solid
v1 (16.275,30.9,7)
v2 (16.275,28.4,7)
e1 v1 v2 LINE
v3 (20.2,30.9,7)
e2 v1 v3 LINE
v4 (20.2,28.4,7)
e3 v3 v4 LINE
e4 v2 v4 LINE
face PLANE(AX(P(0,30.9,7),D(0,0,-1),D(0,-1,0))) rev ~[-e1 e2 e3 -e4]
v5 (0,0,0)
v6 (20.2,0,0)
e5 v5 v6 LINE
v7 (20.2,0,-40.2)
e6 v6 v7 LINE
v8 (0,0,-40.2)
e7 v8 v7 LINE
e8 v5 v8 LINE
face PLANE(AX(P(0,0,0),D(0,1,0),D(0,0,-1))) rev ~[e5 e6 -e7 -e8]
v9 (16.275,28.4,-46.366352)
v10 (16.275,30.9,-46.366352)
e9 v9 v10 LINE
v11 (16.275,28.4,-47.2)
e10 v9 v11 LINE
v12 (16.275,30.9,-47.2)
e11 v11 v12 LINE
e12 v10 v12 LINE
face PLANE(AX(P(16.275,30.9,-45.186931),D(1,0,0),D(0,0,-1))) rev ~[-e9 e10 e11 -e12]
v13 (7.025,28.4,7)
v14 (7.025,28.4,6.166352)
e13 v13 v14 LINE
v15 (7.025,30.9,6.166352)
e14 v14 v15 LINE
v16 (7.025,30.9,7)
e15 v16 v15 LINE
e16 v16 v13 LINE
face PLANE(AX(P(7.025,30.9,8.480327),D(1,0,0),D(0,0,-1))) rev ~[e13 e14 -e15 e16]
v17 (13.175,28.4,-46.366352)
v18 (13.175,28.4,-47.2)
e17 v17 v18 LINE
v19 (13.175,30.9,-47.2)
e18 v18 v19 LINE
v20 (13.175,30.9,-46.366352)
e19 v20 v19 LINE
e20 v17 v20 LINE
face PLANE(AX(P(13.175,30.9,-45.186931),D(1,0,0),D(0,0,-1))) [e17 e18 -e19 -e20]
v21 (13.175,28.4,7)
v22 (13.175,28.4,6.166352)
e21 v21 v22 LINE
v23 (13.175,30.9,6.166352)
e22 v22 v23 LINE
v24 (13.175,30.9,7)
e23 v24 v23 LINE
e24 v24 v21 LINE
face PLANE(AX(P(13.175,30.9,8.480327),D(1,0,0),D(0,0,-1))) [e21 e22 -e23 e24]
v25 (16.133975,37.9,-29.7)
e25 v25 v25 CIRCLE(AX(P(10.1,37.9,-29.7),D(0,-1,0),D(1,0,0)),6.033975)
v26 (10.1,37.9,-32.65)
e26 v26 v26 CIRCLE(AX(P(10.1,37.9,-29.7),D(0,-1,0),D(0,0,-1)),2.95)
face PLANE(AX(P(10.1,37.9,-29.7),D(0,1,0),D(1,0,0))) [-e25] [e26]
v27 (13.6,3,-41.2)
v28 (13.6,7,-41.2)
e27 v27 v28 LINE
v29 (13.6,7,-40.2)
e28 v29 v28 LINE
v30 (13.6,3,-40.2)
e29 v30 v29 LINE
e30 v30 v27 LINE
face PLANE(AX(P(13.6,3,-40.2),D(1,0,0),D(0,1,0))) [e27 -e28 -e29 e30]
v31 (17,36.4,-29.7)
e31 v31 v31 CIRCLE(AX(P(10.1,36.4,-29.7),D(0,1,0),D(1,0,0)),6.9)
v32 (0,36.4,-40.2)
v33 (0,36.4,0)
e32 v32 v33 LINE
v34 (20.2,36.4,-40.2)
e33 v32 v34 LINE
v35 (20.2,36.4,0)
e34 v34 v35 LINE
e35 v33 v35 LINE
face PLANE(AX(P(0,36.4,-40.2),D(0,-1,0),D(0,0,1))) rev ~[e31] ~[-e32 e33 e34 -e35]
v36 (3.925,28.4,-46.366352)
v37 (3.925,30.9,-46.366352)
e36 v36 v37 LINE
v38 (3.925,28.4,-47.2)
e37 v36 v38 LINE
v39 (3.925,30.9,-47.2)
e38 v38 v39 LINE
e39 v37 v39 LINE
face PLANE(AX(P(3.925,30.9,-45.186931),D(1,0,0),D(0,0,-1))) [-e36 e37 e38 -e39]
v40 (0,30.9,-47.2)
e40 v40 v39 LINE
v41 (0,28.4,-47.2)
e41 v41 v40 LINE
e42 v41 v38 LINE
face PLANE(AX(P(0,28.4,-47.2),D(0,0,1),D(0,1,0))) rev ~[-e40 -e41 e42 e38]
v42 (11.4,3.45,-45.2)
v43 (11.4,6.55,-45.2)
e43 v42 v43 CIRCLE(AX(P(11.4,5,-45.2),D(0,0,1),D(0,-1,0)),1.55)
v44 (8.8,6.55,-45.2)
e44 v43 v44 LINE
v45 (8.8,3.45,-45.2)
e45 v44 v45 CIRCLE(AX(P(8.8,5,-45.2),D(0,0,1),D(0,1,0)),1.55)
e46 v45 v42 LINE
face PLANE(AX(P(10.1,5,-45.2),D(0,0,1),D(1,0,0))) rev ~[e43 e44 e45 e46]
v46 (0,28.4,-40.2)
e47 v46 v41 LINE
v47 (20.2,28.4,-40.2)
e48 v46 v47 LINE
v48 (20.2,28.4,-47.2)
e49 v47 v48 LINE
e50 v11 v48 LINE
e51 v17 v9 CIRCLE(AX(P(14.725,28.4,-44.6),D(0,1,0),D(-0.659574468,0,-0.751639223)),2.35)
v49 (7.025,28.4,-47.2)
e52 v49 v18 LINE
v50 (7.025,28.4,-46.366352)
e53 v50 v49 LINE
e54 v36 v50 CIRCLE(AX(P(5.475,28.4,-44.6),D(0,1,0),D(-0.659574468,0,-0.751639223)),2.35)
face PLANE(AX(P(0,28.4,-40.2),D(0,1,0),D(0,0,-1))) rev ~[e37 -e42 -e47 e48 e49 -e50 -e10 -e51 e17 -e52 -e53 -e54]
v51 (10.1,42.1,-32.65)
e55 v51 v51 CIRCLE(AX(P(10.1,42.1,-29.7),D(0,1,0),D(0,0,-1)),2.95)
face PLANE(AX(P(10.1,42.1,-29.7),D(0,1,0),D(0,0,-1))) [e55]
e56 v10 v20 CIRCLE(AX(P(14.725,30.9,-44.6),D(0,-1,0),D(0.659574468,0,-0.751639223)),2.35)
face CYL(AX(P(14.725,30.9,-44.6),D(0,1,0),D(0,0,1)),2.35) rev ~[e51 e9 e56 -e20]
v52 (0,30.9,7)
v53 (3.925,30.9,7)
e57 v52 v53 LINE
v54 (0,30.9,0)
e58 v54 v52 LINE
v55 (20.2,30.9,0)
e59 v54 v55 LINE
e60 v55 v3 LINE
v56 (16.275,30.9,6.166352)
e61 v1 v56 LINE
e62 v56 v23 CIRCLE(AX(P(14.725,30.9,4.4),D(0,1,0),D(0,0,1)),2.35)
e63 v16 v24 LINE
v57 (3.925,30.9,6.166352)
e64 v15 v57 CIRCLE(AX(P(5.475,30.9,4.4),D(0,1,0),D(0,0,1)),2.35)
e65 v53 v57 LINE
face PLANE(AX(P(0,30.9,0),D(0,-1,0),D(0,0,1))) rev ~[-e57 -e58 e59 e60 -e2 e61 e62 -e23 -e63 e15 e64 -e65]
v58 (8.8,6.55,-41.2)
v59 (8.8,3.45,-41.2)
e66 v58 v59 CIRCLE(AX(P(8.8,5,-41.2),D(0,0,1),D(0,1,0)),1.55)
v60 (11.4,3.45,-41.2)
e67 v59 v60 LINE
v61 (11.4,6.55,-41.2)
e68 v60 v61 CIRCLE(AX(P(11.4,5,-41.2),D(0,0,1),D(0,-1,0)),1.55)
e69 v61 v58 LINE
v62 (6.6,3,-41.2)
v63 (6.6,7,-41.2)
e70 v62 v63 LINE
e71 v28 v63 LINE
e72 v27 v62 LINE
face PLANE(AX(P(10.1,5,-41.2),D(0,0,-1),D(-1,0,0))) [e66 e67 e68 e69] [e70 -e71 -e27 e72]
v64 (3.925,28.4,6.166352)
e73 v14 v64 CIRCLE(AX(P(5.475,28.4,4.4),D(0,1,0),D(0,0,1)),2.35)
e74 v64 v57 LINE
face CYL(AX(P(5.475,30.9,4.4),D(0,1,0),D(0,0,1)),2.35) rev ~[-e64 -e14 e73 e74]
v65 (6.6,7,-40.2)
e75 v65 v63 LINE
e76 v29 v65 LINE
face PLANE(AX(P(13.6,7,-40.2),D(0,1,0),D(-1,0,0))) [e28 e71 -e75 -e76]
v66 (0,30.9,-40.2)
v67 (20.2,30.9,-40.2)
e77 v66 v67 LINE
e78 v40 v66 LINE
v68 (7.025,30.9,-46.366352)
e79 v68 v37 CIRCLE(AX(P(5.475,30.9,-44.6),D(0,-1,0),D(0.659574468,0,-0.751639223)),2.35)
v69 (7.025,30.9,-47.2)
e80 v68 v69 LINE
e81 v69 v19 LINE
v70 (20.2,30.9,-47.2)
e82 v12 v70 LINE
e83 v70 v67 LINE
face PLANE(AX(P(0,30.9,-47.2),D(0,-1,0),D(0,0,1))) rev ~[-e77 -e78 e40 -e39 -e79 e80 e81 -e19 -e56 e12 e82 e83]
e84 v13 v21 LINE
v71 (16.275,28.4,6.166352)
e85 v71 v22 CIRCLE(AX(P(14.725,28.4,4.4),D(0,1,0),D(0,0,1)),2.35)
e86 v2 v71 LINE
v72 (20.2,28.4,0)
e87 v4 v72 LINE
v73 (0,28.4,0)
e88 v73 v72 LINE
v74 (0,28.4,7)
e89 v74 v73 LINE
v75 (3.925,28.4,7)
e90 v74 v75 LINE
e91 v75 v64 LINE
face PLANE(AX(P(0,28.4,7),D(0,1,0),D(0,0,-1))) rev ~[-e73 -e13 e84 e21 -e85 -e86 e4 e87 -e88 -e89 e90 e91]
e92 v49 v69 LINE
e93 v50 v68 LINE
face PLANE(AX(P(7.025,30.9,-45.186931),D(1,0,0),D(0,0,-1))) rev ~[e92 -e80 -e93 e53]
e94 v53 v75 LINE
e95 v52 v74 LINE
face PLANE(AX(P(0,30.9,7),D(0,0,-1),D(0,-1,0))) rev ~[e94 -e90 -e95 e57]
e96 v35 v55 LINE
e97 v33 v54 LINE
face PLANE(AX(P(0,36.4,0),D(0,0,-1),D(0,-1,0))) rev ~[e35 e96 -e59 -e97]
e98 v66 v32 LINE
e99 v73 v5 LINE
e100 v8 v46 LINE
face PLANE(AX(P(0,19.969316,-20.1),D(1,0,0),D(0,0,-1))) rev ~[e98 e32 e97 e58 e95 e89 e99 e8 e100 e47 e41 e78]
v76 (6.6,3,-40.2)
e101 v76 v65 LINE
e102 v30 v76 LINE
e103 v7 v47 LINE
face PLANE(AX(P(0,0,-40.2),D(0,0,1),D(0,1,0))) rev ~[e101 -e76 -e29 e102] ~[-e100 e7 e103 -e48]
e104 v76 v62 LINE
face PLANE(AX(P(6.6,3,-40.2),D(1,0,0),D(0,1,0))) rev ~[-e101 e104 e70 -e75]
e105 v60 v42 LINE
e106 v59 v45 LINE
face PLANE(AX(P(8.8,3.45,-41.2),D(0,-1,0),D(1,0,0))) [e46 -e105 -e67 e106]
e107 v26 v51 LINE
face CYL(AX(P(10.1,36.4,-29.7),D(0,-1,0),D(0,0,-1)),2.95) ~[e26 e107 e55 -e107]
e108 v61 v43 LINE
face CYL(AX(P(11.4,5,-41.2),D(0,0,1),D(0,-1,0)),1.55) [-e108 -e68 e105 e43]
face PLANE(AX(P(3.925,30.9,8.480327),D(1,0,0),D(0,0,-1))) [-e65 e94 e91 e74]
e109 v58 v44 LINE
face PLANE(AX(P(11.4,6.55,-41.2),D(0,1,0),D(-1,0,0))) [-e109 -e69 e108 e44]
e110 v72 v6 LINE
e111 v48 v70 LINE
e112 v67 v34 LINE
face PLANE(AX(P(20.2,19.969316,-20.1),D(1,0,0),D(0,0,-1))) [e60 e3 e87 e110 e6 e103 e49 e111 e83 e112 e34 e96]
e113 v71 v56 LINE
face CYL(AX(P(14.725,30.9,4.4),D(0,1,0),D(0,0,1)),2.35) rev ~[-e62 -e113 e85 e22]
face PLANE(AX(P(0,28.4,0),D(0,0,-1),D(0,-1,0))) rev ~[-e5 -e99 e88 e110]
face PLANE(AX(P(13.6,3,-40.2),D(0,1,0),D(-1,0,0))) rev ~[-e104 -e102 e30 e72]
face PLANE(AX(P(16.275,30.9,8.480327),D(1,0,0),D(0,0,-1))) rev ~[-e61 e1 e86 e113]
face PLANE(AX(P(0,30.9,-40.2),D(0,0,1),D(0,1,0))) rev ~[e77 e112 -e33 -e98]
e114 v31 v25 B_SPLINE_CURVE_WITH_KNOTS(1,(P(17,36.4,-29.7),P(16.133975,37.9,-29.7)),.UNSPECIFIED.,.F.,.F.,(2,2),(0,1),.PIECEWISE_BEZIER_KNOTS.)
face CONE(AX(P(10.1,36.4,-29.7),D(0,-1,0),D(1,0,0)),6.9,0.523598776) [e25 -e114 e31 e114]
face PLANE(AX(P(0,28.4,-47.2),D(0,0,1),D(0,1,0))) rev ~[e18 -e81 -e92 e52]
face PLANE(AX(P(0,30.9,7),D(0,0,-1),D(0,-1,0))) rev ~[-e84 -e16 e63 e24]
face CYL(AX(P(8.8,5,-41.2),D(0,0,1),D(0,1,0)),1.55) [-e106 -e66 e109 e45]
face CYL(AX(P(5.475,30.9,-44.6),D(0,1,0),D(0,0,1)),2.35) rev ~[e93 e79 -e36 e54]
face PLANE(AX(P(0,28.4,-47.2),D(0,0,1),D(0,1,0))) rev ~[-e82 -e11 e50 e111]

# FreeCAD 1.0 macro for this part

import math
import FreeCAD as App
import Part
import Sketcher
Q = App.Units.Quantity


def add_polygon(sketch, points):
    """Adds a closed chain of lines whose ends are joined by coincident constraints."""
    first, n = sketch.GeometryCount, len(points)
    for a, b in zip(points, points[1:] + points[:1]):
        sketch.addGeometry(Part.LineSegment(App.Vector(*a, 0), App.Vector(*b, 0)), False)
    for i in range(n):
        sketch.addConstraint(Sketcher.Constraint("Coincident", first + i, 2, first + (i + 1) % n, 1))

doc = App.newDocument("Part")
params = doc.addObject("Spreadsheet::Sheet", "Params")
for row, (alias, value) in enumerate([
    ("sketch1_height", "7 mm"),
    ("sketch1_width", "28.4 mm"),
    ("sketch1_width2", "2.5 mm"),
    ("sketch1_width3", "5.5 mm"),
    ("sketch1_height2", "40.2 mm"),
    ("pad1_length", "20.2 mm"),
    ("sketch2_diameter", "4.7 mm"),
    ("sketch3_width", "3.1 mm"),
    ("pocket2_length", "10 mm"),
    ("sketch4_diameter", "5.9 mm"),
    ("pad2_length", "5.7 mm"),
    ("sketch5_diameter", "13.8 mm"),
    ("pad3_length", "1.5 mm"),
    ("pad3_taper", "-30 deg"),
    ("sketch6_width", "7 mm"),
    ("sketch6_height", "4 mm"),
    ("pad4_length", "1 mm"),
    ("sketch7_radius", "1.55 mm"),
    ("sketch7_width", "2.6 mm"),
    ("pad5_length", "4 mm"),
], start=1):
    params.set(f"A{row}", alias)
    params.set(f"B{row}", "=" + value)
    params.setAlias(f"B{row}", alias)

body = doc.addObject("PartDesign::Body", "Body")

sketch1 = body.newObject("Sketcher::SketchObject", "Sketch")
sketch1.AttachmentSupport = (doc.getObject("YZ_Plane"), [""])
sketch1.MapMode = "FlatFace"
add_polygon(sketch1, [(0, 0), (0, -40.2), (28.4, -40.2), (28.4, -47.2), (30.9, -47.2), (30.9, -40.2), (36.4, -40.2), (36.4, 0), (30.9, 0), (30.9, 7), (28.4, 7), (28.4, 0)])
sketch1.addConstraint([
    Sketcher.Constraint("Vertical", 0),
    Sketcher.Constraint("Horizontal", 1),
    Sketcher.Constraint("Vertical", 2),
    Sketcher.Constraint("Horizontal", 3),
    Sketcher.Constraint("Vertical", 4),
    Sketcher.Constraint("Horizontal", 5),
    Sketcher.Constraint("Vertical", 6),
    Sketcher.Constraint("Horizontal", 7),
    Sketcher.Constraint("Vertical", 8),
    Sketcher.Constraint("Horizontal", 9),
    Sketcher.Constraint("Vertical", 10),
    Sketcher.Constraint("Horizontal", 11),
    Sketcher.Constraint("Coincident", 11, 2, -1, 1),
    Sketcher.Constraint("PointOnObject", 6, 2, -1),
    Sketcher.Constraint("Horizontal", 1, 2, 4, 2),
    Sketcher.Constraint("Vertical", 4, 2, 7, 2),
    Sketcher.Constraint("Vertical", 2, 2, 9, 2),
    Sketcher.Constraint("Equal", 4, 8),
    Sketcher.Constraint("DistanceY", 2, 2, 2, 1, Q("7 mm")),
    Sketcher.Constraint("DistanceX", 1, 1, 1, 2, Q("28.4 mm")),
    Sketcher.Constraint("DistanceX", 3, 1, 3, 2, Q("2.5 mm")),
    Sketcher.Constraint("DistanceX", 5, 1, 5, 2, Q("5.5 mm")),
    Sketcher.Constraint("DistanceY", 0, 2, 0, 1, Q("40.2 mm")),
])
sketch1.setExpression("Constraints[30]", "Params.sketch1_height")
sketch1.setExpression("Constraints[31]", "Params.sketch1_width")
sketch1.setExpression("Constraints[32]", "Params.sketch1_width2")
sketch1.setExpression("Constraints[33]", "Params.sketch1_width3")
sketch1.setExpression("Constraints[34]", "Params.sketch1_height2")
pad1 = body.newObject("PartDesign::Pad", "Pad")
pad1.Profile = sketch1
pad1.setExpression("Length", "Params.pad1_length")

sketch2 = body.newObject("Sketcher::SketchObject", "Sketch001")
sketch2.AttachmentSupport = (doc.getObject("XZ_Plane"), [""])
sketch2.MapMode = "FlatFace"
sketch2.AttachmentOffset = App.Placement(App.Vector(0, 0, -30.9), App.Rotation())
sketch2.addGeometry([
    Part.Circle(App.Vector(5.475, -44.6, 0), App.Vector(0, 0, 1), 2.35),
    Part.Circle(App.Vector(14.725, -44.6, 0), App.Vector(0, 0, 1), 2.35),
    Part.Circle(App.Vector(14.725, 4.4, 0), App.Vector(0, 0, 1), 2.35),
    Part.Circle(App.Vector(5.475, 4.4, 0), App.Vector(0, 0, 1), 2.35),
], False)
sketch2.addConstraint([
    Sketcher.Constraint("Equal", 0, 1),
    Sketcher.Constraint("Equal", 1, 2),
    Sketcher.Constraint("Equal", 2, 3),
    Sketcher.Constraint("Horizontal", 0, 3, 1, 3),
    Sketcher.Constraint("Horizontal", 2, 3, 3, 3),
    Sketcher.Constraint("Vertical", 1, 3, 2, 3),
    Sketcher.Constraint("Vertical", 0, 3, 3, 3),
    Sketcher.Constraint("Diameter", 0, Q("4.7 mm")),
    Sketcher.Constraint("DistanceY", 1, 3, 2, 3, Q("49 mm")),
    Sketcher.Constraint("DistanceY", 0, 3, -1, 1, Q("44.6 mm")),
    Sketcher.Constraint("DistanceX", 0, 3, 1, 3, Q("9.25 mm")),
    Sketcher.Constraint("DistanceX", -1, 1, 0, 3, Q("5.475 mm")),
])
sketch2.setExpression("Constraints[7]", "Params.sketch2_diameter")
pocket1 = body.newObject("PartDesign::Pocket", "Pocket")
pocket1.Profile = sketch2
pocket1.Type = "ThroughAll"
pocket1.Reversed = True

sketch3 = body.newObject("Sketcher::SketchObject", "Sketch002")
sketch3.AttachmentSupport = (doc.getObject("XZ_Plane"), [""])
sketch3.MapMode = "FlatFace"
sketch3.AttachmentOffset = App.Placement(App.Vector(0, 0, -30.9), App.Rotation())
add_polygon(sketch3, [(3.925, -48.680327), (3.925, -45.186931), (7.025, -45.186931), (7.025, -48.680327)])
add_polygon(sketch3, [(13.175, -48.680327), (13.175, -45.186931), (16.275, -45.186931), (16.275, -48.680327)])
add_polygon(sketch3, [(13.175, 4.986931), (13.175, 8.480327), (16.275, 8.480327), (16.275, 4.986931)])
add_polygon(sketch3, [(3.925, 4.986931), (3.925, 8.480327), (7.025, 8.480327), (7.025, 4.986931)])
sketch3.addConstraint([
    Sketcher.Constraint("Vertical", 0),
    Sketcher.Constraint("Horizontal", 1),
    Sketcher.Constraint("Vertical", 2),
    Sketcher.Constraint("Horizontal", 3),
    Sketcher.Constraint("Vertical", 4),
    Sketcher.Constraint("Horizontal", 5),
    Sketcher.Constraint("Vertical", 6),
    Sketcher.Constraint("Horizontal", 7),
    Sketcher.Constraint("Vertical", 8),
    Sketcher.Constraint("Horizontal", 9),
    Sketcher.Constraint("Vertical", 10),
    Sketcher.Constraint("Horizontal", 11),
    Sketcher.Constraint("Vertical", 12),
    Sketcher.Constraint("Horizontal", 13),
    Sketcher.Constraint("Vertical", 14),
    Sketcher.Constraint("Horizontal", 15),
    Sketcher.Constraint("Horizontal", 1, 2, 4, 2),
    Sketcher.Constraint("Horizontal", 3, 2, 6, 2),
    Sketcher.Constraint("Horizontal", 9, 2, 12, 2),
    Sketcher.Constraint("Horizontal", 11, 2, 14, 2),
    Sketcher.Constraint("Vertical", 7, 2, 8, 2),
    Sketcher.Constraint("Vertical", 6, 2, 9, 2),
    Sketcher.Constraint("Vertical", 3, 2, 12, 2),
    Sketcher.Constraint("Vertical", 2, 2, 13, 2),
    Sketcher.Constraint("Equal", 3, 5),
    Sketcher.Constraint("Equal", 6, 8),
    Sketcher.Constraint("DistanceX", 1, 1, 1, 2, Q("3.1 mm")),
    Sketcher.Constraint("DistanceX", 1, 2, 4, 2, Q("6.15 mm")),
    Sketcher.Constraint("DistanceX", -1, 1, 0, 2, Q("3.925 mm")),
    Sketcher.Constraint("DistanceY", 0, 1, 0, 2, Q("3.493396 mm")),
    Sketcher.Constraint("DistanceY", 0, 2, -1, 1, Q("45.186931 mm")),
    Sketcher.Constraint("DistanceY", -1, 1, 10, 2, Q("4.986931 mm")),
])
sketch3.setExpression("Constraints[42]", "Params.sketch3_width")
pocket2 = body.newObject("PartDesign::Pocket", "Pocket001")
pocket2.Profile = sketch3
pocket2.setExpression("Length", "Params.pocket2_length")
pocket2.Reversed = True

sketch4 = body.newObject("Sketcher::SketchObject", "Sketch003")
sketch4.AttachmentSupport = (doc.getObject("XZ_Plane"), [""])
sketch4.MapMode = "FlatFace"
sketch4.AttachmentOffset = App.Placement(App.Vector(0, 0, -36.4), App.Rotation())
sketch4.addGeometry(Part.Circle(App.Vector(10.1, -29.7, 0), App.Vector(0, 0, 1), 2.95), False)
sketch4.addConstraint([
    Sketcher.Constraint("Diameter", 0, Q("5.9 mm")),
    Sketcher.Constraint("DistanceX", -1, 1, 0, 3, Q("10.1 mm")),
    Sketcher.Constraint("DistanceY", 0, 3, -1, 1, Q("29.7 mm")),
])
sketch4.setExpression("Constraints[0]", "Params.sketch4_diameter")
pad2 = body.newObject("PartDesign::Pad", "Pad001")
pad2.Profile = sketch4
pad2.setExpression("Length", "Params.pad2_length")
pad2.Reversed = True

sketch5 = body.newObject("Sketcher::SketchObject", "Sketch004")
sketch5.AttachmentSupport = (doc.getObject("XZ_Plane"), [""])
sketch5.MapMode = "FlatFace"
sketch5.AttachmentOffset = App.Placement(App.Vector(0, 0, -36.4), App.Rotation())
sketch5.addGeometry(Part.Circle(App.Vector(10.1, -29.7, 0), App.Vector(0, 0, 1), 6.9), False)
sketch5.addConstraint([
    Sketcher.Constraint("Diameter", 0, Q("13.8 mm")),
    Sketcher.Constraint("DistanceX", -1, 1, 0, 3, Q("10.1 mm")),
    Sketcher.Constraint("DistanceY", 0, 3, -1, 1, Q("29.7 mm")),
])
sketch5.setExpression("Constraints[0]", "Params.sketch5_diameter")
pad3 = body.newObject("PartDesign::Pad", "Pad002")
pad3.Profile = sketch5
pad3.setExpression("Length", "Params.pad3_length")
pad3.Reversed = True
pad3.setExpression("TaperAngle", "Params.pad3_taper")

sketch6 = body.newObject("Sketcher::SketchObject", "Sketch005")
sketch6.AttachmentSupport = (doc.getObject("XY_Plane"), [""])
sketch6.MapMode = "FlatFace"
sketch6.AttachmentOffset = App.Placement(App.Vector(0, 0, -40.2), App.Rotation())
add_polygon(sketch6, [(13.6, 7), (13.6, 3), (6.6, 3), (6.6, 7)])
sketch6.addConstraint([
    Sketcher.Constraint("Vertical", 0),
    Sketcher.Constraint("Horizontal", 1),
    Sketcher.Constraint("Vertical", 2),
    Sketcher.Constraint("Horizontal", 3),
    Sketcher.Constraint("DistanceX", 1, 2, 1, 1, Q("7 mm")),
    Sketcher.Constraint("DistanceY", 0, 2, 0, 1, Q("4 mm")),
    Sketcher.Constraint("DistanceY", -1, 1, 0, 2, Q("3 mm")),
    Sketcher.Constraint("DistanceX", -1, 1, 0, 2, Q("13.6 mm")),
])
sketch6.setExpression("Constraints[8]", "Params.sketch6_width")
sketch6.setExpression("Constraints[9]", "Params.sketch6_height")
pad4 = body.newObject("PartDesign::Pad", "Pad003")
pad4.Profile = sketch6
pad4.setExpression("Length", "Params.pad4_length")
pad4.Reversed = True

sketch7 = body.newObject("Sketcher::SketchObject", "Sketch006")
sketch7.AttachmentSupport = (doc.getObject("XY_Plane"), [""])
sketch7.MapMode = "FlatFace"
sketch7.AttachmentOffset = App.Placement(App.Vector(0, 0, -41.2), App.Rotation())
sketch7.addGeometry([
    Part.LineSegment(App.Vector(8.8, 6.55, 0), App.Vector(11.4, 6.55, 0)),
    Part.ArcOfCircle(Part.Circle(App.Vector(11.4, 5, 0), App.Vector(0, 0, 1), 1.55), math.radians(-90), math.radians(90)),
    Part.LineSegment(App.Vector(11.4, 3.45, 0), App.Vector(8.8, 3.45, 0)),
    Part.ArcOfCircle(Part.Circle(App.Vector(8.8, 5, 0), App.Vector(0, 0, 1), 1.55), math.radians(90), math.radians(270)),
], False)
sketch7.addConstraint([
    Sketcher.Constraint("Tangent", 0, 2, 1, 2),
    Sketcher.Constraint("Tangent", 1, 1, 2, 1),
    Sketcher.Constraint("Tangent", 2, 2, 3, 2),
    Sketcher.Constraint("Tangent", 3, 1, 0, 1),
    Sketcher.Constraint("Horizontal", 0),
    Sketcher.Constraint("Horizontal", 2),
    Sketcher.Constraint("Radius", 1, Q("1.55 mm")),
    Sketcher.Constraint("DistanceX", 0, 1, 0, 2, Q("2.6 mm")),
    Sketcher.Constraint("DistanceY", -1, 1, 1, 3, Q("5 mm")),
    Sketcher.Constraint("DistanceX", -1, 1, 1, 3, Q("11.4 mm")),
])
sketch7.setExpression("Constraints[6]", "Params.sketch7_radius")
sketch7.setExpression("Constraints[7]", "Params.sketch7_width")
pad5 = body.newObject("PartDesign::Pad", "Pad004")
pad5.Profile = sketch7
pad5.setExpression("Length", "Params.pad5_length")
pad5.Reversed = True

doc.recompute()
